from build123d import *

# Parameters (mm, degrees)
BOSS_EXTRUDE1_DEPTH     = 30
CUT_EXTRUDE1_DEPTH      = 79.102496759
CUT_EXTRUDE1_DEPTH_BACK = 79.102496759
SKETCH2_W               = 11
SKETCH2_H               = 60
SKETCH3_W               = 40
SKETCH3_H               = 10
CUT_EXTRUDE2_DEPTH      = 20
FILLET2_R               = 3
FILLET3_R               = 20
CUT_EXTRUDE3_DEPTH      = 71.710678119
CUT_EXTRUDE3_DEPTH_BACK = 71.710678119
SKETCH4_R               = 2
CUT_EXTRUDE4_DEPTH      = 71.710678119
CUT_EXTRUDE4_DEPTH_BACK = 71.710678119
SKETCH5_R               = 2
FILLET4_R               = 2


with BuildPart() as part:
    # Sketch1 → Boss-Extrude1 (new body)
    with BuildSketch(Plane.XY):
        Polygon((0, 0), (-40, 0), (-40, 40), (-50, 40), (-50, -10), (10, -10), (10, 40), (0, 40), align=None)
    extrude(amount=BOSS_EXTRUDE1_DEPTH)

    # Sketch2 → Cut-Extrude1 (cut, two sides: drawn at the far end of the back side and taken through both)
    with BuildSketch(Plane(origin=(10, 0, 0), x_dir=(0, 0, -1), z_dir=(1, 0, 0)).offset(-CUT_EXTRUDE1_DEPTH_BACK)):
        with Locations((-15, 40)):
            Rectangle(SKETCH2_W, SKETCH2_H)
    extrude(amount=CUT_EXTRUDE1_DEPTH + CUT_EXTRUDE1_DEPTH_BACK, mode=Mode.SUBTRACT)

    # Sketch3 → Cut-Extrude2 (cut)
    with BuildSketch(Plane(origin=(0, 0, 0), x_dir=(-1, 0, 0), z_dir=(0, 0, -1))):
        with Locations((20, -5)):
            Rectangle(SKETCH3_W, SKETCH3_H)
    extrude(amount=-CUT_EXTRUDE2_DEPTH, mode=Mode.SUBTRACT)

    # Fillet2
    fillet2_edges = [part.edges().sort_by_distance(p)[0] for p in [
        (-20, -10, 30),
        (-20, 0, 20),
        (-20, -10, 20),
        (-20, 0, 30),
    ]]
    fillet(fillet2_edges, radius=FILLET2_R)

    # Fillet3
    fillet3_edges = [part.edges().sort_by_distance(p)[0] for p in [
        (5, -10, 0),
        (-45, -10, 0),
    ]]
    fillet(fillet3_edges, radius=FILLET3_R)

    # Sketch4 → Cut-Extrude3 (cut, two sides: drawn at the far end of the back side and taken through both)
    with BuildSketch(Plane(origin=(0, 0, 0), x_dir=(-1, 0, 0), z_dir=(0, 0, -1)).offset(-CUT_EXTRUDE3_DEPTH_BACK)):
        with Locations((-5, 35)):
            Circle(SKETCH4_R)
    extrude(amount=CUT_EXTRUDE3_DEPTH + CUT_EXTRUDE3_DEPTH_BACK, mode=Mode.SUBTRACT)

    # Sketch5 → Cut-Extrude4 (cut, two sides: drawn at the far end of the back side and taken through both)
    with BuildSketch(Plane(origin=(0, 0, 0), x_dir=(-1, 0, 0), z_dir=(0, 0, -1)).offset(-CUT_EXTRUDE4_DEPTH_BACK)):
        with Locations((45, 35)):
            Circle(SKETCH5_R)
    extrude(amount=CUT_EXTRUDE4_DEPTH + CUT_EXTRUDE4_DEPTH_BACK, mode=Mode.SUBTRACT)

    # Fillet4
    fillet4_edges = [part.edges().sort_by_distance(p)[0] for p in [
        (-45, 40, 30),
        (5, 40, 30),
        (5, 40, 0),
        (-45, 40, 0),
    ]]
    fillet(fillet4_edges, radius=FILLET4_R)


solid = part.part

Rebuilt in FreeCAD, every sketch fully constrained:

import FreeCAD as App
import Part
import Sketcher
Q = App.Units.Quantity


def edges_at(feature, points):
    """Names of the edges that pass closest to the given points."""
    edges = feature.Shape.Edges
    near = lambda p: min(range(len(edges)), key=lambda i: edges[i].distToShape(Part.Vertex(*p))[0])
    return sorted({f"Edge{near(p) + 1}" for p in points})

doc = App.newDocument("Part")
body = doc.addObject("PartDesign::Body", "Body")

sketch1 = body.newObject("Sketcher::SketchObject", "Sketch")
sketch1.AttachmentSupport = (doc.getObject("XY_Plane"), [""])
sketch1.MapMode = "FlatFace"
sketch1.addGeometry(Part.LineSegment(App.Vector(0, 0, 0), App.Vector(-40, 0, 0)), False)
sketch1.addGeometry(Part.LineSegment(App.Vector(-40, 0, 0), App.Vector(-40, 40, 0)), False)
sketch1.addGeometry(Part.LineSegment(App.Vector(-40, 40, 0), App.Vector(-50, 40, 0)), False)
sketch1.addGeometry(Part.LineSegment(App.Vector(-50, 40, 0), App.Vector(-50, -10, 0)), False)
sketch1.addGeometry(Part.LineSegment(App.Vector(-50, -10, 0), App.Vector(10, -10, 0)), False)
sketch1.addGeometry(Part.LineSegment(App.Vector(10, -10, 0), App.Vector(10, 40, 0)), False)
sketch1.addGeometry(Part.LineSegment(App.Vector(10, 40, 0), App.Vector(0, 40, 0)), False)
sketch1.addGeometry(Part.LineSegment(App.Vector(0, 40, 0), App.Vector(0, 0, 0)), False)
sketch1.addConstraint(Sketcher.Constraint("Coincident", 0, 2, 1, 1))
sketch1.addConstraint(Sketcher.Constraint("Coincident", 1, 2, 2, 1))
sketch1.addConstraint(Sketcher.Constraint("Coincident", 2, 2, 3, 1))
sketch1.addConstraint(Sketcher.Constraint("Coincident", 3, 2, 4, 1))
sketch1.addConstraint(Sketcher.Constraint("Coincident", 4, 2, 5, 1))
sketch1.addConstraint(Sketcher.Constraint("Coincident", 5, 2, 6, 1))
sketch1.addConstraint(Sketcher.Constraint("Coincident", 6, 2, 7, 1))
sketch1.addConstraint(Sketcher.Constraint("Coincident", 7, 2, 0, 1))
sketch1.addConstraint(Sketcher.Constraint("Horizontal", 0))
sketch1.addConstraint(Sketcher.Constraint("Vertical", 1))
sketch1.addConstraint(Sketcher.Constraint("Horizontal", 2))
sketch1.addConstraint(Sketcher.Constraint("Vertical", 3))
sketch1.addConstraint(Sketcher.Constraint("Horizontal", 4))
sketch1.addConstraint(Sketcher.Constraint("Vertical", 5))
sketch1.addConstraint(Sketcher.Constraint("Horizontal", 6))
sketch1.addConstraint(Sketcher.Constraint("Vertical", 7))
sketch1.addConstraint(Sketcher.Constraint("Coincident", 7, 2, -1, 1))
sketch1.addConstraint(Sketcher.Constraint("Horizontal", 2, 2, 5, 2))
sketch1.addConstraint(Sketcher.Constraint("Equal", 2, 6))
sketch1.addConstraint(Sketcher.Constraint("Equal", 0, 1))
sketch1.addConstraint(Sketcher.Constraint("DistanceX", 0, 2, 0, 1, Q("40 mm")))
sketch1.addConstraint(Sketcher.Constraint("DistanceX", 2, 2, 2, 1, Q("10 mm")))
sketch1.addConstraint(Sketcher.Constraint("DistanceY", 3, 2, 3, 1, Q("50 mm")))
pad1 = body.newObject("PartDesign::Pad", "Pad")
pad1.Profile = sketch1
pad1.Length = 30

sketch2 = body.newObject("Sketcher::SketchObject", "Sketch001")
sketch2.AttachmentSupport = (doc.getObject("YZ_Plane"), [""])
sketch2.MapMode = "FlatFace"
sketch2.AttachmentOffset = App.Placement(App.Vector(0, 0, 10), App.Rotation())
sketch2.addGeometry(Part.LineSegment(App.Vector(70, 20, 0), App.Vector(10, 20, 0)), False)
sketch2.addGeometry(Part.LineSegment(App.Vector(10, 20, 0), App.Vector(10, 10, 0)), False)
sketch2.addGeometry(Part.LineSegment(App.Vector(10, 10, 0), App.Vector(70, 10, 0)), False)
sketch2.addGeometry(Part.LineSegment(App.Vector(70, 10, 0), App.Vector(70, 20, 0)), False)
sketch2.addConstraint(Sketcher.Constraint("Coincident", 0, 2, 1, 1))
sketch2.addConstraint(Sketcher.Constraint("Coincident", 1, 2, 2, 1))
sketch2.addConstraint(Sketcher.Constraint("Coincident", 2, 2, 3, 1))
sketch2.addConstraint(Sketcher.Constraint("Coincident", 3, 2, 0, 1))
sketch2.addConstraint(Sketcher.Constraint("Horizontal", 0))
sketch2.addConstraint(Sketcher.Constraint("Vertical", 1))
sketch2.addConstraint(Sketcher.Constraint("Horizontal", 2))
sketch2.addConstraint(Sketcher.Constraint("Vertical", 3))
sketch2.addConstraint(Sketcher.Constraint("DistanceX", 0, 2, 0, 1, Q("60 mm")))
sketch2.addConstraint(Sketcher.Constraint("DistanceY", 1, 2, 1, 1, Q("11 mm")))
sketch2.addConstraint(Sketcher.Constraint("DistanceX", -1, 1, 0, 2, Q("10 mm")))
sketch2.addConstraint(Sketcher.Constraint("DistanceY", -1, 1, 0, 2, Q("20.5 mm")))
pocket1 = body.newObject("PartDesign::Pocket", "Pocket")
pocket1.Profile = sketch2
pocket1.Type = "ThroughAll"
pocket1.Midplane = True

sketch3 = body.newObject("Sketcher::SketchObject", "Sketch002")
sketch3.AttachmentSupport = (doc.getObject("XY_Plane"), [""])
sketch3.MapMode = "FlatFace"
sketch3.addGeometry(Part.LineSegment(App.Vector(0, 0, 0), App.Vector(0, -10, 0)), False)
sketch3.addGeometry(Part.LineSegment(App.Vector(0, -10, 0), App.Vector(-40, -10, 0)), False)
sketch3.addGeometry(Part.LineSegment(App.Vector(-40, -10, 0), App.Vector(-40, 0, 0)), False)
sketch3.addGeometry(Part.LineSegment(App.Vector(-40, 0, 0), App.Vector(0, 0, 0)), False)
sketch3.addConstraint(Sketcher.Constraint("Coincident", 0, 2, 1, 1))
sketch3.addConstraint(Sketcher.Constraint("Coincident", 1, 2, 2, 1))
sketch3.addConstraint(Sketcher.Constraint("Coincident", 2, 2, 3, 1))
sketch3.addConstraint(Sketcher.Constraint("Coincident", 3, 2, 0, 1))
sketch3.addConstraint(Sketcher.Constraint("Vertical", 0))
sketch3.addConstraint(Sketcher.Constraint("Horizontal", 1))
sketch3.addConstraint(Sketcher.Constraint("Vertical", 2))
sketch3.addConstraint(Sketcher.Constraint("Horizontal", 3))
sketch3.addConstraint(Sketcher.Constraint("Coincident", 3, 2, -1, 1))
sketch3.addConstraint(Sketcher.Constraint("DistanceX", 1, 2, 1, 1, Q("40 mm")))
sketch3.addConstraint(Sketcher.Constraint("DistanceY", 0, 2, 0, 1, Q("10 mm")))
pocket2 = body.newObject("PartDesign::Pocket", "Pocket001")
pocket2.Profile = sketch3
pocket2.Length = 20
pocket2.Reversed = True
doc.recompute()

fillet = body.newObject("PartDesign::Fillet", "Fillet")
fillet.Base = (pocket2, edges_at(pocket2, [
    (-20, -10, 30),
    (-20, 0, 20),
    (-20, -10, 20),
    (-20, 0, 30),
]))
fillet.Radius = 3
doc.recompute()

fillet2 = body.newObject("PartDesign::Fillet", "Fillet001")
fillet2.Base = (fillet, edges_at(fillet, [(5, -10, 0), (-45, -10, 0)]))
fillet2.Radius = 20

sketch4 = body.newObject("Sketcher::SketchObject", "Sketch003")
sketch4.AttachmentSupport = (doc.getObject("XY_Plane"), [""])
sketch4.MapMode = "FlatFace"
sketch4.addGeometry(Part.Circle(App.Vector(5, 35, 0), App.Vector(0, 0, 1), 2), False)
sketch4.addConstraint(Sketcher.Constraint("Diameter", 0, Q("4 mm")))
sketch4.addConstraint(Sketcher.Constraint("DistanceX", -1, 1, 0, 3, Q("5 mm")))
sketch4.addConstraint(Sketcher.Constraint("DistanceY", -1, 1, 0, 3, Q("35 mm")))
pocket3 = body.newObject("PartDesign::Pocket", "Pocket002")
pocket3.Profile = sketch4
pocket3.Type = "ThroughAll"
pocket3.Midplane = True

sketch5 = body.newObject("Sketcher::SketchObject", "Sketch004")
sketch5.AttachmentSupport = (doc.getObject("XY_Plane"), [""])
sketch5.MapMode = "FlatFace"
sketch5.addGeometry(Part.Circle(App.Vector(-45, 35, 0), App.Vector(0, 0, 1), 2), False)
sketch5.addConstraint(Sketcher.Constraint("Diameter", 0, Q("4 mm")))
sketch5.addConstraint(Sketcher.Constraint("DistanceX", 0, 3, -1, 1, Q("45 mm")))
sketch5.addConstraint(Sketcher.Constraint("DistanceY", -1, 1, 0, 3, Q("35 mm")))
pocket4 = body.newObject("PartDesign::Pocket", "Pocket003")
pocket4.Profile = sketch5
pocket4.Type = "ThroughAll"
pocket4.Midplane = True
doc.recompute()

fillet3 = body.newObject("PartDesign::Fillet", "Fillet002")
fillet3.Base = (pocket4, edges_at(pocket4, [
    (-45, 40, 30),
    (5, 40, 30),
    (5, 40, 0),
    (-45, 40, 0),
]))
fillet3.Radius = 2

doc.recompute()
